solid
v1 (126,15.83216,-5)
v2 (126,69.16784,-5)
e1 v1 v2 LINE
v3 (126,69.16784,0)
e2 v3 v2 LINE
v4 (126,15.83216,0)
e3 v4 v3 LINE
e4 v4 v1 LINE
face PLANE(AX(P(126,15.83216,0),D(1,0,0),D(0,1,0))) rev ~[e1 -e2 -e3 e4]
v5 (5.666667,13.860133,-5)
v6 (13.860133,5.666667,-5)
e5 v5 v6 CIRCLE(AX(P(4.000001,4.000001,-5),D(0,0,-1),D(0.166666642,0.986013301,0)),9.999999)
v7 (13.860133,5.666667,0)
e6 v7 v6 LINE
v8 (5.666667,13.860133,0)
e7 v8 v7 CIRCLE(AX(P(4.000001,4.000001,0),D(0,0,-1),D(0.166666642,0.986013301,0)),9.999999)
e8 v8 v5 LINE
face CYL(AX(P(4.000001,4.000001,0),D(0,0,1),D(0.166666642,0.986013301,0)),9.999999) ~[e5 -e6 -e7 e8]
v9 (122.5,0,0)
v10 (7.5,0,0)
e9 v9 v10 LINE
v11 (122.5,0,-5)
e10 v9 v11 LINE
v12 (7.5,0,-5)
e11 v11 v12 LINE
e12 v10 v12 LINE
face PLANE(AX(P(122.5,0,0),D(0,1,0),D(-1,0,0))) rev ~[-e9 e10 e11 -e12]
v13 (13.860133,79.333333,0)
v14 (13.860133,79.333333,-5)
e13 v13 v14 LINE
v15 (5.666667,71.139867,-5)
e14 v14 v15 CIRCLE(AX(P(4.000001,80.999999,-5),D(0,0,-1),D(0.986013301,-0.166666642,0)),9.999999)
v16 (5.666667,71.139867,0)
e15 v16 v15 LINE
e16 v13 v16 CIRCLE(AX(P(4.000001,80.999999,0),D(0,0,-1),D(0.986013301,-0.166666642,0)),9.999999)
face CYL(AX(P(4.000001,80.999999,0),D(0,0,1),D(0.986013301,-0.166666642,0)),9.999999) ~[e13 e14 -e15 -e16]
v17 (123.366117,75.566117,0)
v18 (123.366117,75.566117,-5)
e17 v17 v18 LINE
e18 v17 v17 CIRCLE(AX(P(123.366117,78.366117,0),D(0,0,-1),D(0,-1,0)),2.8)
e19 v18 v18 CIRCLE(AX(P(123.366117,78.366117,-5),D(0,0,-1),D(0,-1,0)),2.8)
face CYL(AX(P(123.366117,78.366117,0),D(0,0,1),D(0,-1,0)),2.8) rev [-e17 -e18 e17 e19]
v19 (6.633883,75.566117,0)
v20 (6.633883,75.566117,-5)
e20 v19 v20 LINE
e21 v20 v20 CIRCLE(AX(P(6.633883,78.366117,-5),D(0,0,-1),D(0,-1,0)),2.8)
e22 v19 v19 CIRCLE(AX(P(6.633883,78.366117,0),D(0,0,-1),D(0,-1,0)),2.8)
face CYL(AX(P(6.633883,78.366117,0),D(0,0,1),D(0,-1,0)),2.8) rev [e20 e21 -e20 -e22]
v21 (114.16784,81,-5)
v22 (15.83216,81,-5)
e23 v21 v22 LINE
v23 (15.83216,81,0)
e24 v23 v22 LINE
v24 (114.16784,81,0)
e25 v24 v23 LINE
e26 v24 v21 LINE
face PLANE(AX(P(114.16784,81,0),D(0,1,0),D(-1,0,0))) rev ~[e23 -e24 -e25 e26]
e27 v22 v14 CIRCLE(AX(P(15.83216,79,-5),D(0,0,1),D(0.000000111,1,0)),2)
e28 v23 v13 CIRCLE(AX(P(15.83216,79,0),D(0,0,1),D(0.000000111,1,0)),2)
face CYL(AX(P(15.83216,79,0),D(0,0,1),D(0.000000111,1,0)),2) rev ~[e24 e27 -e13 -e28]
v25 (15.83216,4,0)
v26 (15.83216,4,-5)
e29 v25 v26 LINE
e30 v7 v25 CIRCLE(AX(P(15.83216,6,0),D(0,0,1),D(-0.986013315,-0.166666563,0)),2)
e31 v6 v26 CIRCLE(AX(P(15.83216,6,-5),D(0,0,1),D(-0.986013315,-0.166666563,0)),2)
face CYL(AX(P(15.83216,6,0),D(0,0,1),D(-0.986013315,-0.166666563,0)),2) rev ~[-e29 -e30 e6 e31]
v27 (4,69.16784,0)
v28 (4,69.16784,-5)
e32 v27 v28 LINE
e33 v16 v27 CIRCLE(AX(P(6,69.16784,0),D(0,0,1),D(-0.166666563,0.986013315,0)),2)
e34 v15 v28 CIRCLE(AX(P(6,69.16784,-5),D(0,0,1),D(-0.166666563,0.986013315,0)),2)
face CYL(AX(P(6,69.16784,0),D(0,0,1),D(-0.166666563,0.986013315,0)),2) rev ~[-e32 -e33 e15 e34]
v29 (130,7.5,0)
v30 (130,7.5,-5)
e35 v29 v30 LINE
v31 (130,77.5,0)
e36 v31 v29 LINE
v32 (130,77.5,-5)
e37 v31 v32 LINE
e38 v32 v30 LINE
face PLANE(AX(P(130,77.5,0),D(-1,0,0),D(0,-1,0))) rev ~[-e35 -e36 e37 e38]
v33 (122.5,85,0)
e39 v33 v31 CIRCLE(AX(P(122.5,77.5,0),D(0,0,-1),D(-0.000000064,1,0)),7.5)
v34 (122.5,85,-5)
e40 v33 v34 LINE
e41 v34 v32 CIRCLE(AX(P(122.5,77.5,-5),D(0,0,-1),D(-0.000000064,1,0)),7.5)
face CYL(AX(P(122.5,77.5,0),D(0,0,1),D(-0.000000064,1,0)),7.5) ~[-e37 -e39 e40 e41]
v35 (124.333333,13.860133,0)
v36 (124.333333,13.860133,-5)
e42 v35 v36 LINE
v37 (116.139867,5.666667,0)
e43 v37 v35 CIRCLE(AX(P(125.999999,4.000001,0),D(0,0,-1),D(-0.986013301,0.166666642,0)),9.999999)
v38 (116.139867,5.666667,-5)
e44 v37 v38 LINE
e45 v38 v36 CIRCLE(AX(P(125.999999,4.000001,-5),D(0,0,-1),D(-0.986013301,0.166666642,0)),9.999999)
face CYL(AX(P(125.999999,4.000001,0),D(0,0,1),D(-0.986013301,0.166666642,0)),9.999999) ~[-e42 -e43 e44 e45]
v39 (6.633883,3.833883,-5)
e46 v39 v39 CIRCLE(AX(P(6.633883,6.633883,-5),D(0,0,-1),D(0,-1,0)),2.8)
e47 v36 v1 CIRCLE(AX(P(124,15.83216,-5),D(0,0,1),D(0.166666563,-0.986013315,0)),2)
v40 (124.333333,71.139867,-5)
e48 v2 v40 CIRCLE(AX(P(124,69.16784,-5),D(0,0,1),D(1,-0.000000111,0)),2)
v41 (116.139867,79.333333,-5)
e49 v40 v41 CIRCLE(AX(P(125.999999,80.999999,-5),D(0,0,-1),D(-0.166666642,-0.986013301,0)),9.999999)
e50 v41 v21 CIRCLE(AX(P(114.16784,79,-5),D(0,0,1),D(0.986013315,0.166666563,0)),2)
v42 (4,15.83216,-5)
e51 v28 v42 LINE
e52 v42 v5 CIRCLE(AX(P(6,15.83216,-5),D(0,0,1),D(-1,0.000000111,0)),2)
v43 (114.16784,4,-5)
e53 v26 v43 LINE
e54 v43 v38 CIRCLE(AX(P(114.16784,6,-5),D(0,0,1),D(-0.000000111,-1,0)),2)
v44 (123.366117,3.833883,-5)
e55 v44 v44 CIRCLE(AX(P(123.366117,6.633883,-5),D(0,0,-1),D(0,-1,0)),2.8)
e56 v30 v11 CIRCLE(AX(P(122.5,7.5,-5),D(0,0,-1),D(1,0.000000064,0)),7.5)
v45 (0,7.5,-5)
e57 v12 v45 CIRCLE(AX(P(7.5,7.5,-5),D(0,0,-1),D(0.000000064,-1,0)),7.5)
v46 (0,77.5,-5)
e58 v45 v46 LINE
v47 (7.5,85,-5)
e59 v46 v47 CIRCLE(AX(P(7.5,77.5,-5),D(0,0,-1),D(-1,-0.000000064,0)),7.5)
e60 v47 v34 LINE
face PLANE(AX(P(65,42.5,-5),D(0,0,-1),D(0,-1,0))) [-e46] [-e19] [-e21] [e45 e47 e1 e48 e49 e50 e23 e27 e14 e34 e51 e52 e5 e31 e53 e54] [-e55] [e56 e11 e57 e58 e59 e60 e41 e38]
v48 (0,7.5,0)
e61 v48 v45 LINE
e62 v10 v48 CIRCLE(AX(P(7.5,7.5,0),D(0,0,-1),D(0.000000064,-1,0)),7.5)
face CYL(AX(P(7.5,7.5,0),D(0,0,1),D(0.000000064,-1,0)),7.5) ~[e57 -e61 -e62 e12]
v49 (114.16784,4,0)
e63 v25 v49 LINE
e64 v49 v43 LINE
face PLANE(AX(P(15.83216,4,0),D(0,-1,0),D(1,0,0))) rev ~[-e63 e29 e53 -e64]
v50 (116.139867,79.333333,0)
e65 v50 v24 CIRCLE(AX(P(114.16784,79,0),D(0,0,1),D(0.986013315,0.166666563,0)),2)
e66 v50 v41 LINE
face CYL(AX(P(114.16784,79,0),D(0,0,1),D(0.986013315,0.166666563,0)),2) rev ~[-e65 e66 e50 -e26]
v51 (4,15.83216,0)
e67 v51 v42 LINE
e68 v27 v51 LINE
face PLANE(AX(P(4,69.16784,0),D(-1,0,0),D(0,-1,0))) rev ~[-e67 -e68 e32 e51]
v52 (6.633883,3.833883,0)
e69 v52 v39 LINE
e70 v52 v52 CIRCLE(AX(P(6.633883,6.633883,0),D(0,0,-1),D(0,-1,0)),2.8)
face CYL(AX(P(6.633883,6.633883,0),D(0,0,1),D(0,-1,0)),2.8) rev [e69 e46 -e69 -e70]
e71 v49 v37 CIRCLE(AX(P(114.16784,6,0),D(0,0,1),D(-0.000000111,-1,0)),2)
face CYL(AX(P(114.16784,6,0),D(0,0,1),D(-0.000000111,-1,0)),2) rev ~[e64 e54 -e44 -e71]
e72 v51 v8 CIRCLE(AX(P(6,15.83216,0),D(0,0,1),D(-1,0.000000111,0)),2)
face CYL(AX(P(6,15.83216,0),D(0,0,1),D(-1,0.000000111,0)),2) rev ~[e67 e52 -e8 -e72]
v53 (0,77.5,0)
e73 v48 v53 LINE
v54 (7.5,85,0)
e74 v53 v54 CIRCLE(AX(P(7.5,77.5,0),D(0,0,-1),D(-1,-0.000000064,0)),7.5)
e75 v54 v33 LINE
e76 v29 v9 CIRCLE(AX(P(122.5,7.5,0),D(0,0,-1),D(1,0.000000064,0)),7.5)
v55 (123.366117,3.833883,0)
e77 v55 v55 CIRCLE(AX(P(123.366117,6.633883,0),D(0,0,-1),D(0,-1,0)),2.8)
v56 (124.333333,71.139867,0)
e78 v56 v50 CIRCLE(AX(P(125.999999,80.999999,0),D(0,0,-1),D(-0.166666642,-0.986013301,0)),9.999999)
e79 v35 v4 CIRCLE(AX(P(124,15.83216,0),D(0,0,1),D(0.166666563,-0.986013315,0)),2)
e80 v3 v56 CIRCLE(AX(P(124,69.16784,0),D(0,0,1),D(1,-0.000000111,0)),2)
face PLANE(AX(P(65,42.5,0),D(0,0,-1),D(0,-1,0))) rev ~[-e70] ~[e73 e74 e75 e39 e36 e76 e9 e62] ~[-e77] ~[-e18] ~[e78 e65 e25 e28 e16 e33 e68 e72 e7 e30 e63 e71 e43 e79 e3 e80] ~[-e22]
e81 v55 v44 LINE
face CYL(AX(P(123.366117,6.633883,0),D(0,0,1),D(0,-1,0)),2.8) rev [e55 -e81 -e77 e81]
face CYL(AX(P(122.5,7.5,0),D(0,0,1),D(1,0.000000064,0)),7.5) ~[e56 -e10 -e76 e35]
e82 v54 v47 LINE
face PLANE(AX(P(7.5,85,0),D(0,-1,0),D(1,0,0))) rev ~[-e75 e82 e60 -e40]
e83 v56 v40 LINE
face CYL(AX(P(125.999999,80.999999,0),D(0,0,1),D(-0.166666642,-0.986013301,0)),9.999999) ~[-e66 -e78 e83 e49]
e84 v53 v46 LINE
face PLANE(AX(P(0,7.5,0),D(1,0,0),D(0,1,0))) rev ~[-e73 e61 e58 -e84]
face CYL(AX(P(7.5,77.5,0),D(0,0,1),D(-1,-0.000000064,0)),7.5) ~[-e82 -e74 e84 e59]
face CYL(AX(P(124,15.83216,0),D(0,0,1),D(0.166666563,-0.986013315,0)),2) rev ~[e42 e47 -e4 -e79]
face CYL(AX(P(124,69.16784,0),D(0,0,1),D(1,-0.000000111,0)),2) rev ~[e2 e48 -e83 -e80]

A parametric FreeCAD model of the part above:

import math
import FreeCAD as App
import Part
import Sketcher
Q = App.Units.Quantity

doc = App.newDocument("Part")
body = doc.addObject("PartDesign::Body", "Body")

sketch1 = body.newObject("Sketcher::SketchObject", "Sketch")
sketch1.AttachmentSupport = (doc.getObject("XY_Plane"), [""])
sketch1.MapMode = "FlatFace"
sketch1.addGeometry(Part.LineSegment(App.Vector(0, 7.5, 0), App.Vector(0, 77.5, 0)), False)
sketch1.addGeometry(Part.ArcOfCircle(Part.Circle(App.Vector(7.5, 77.5, 0), App.Vector(0, 0, 1), 7.5), math.radians(90), math.radians(180)), False)
sketch1.addGeometry(Part.LineSegment(App.Vector(7.5, 85, 0), App.Vector(122.5, 85, 0)), False)
sketch1.addGeometry(Part.ArcOfCircle(Part.Circle(App.Vector(122.5, 77.5, 0), App.Vector(0, 0, 1), 7.5), math.radians(0), math.radians(90)), False)
sketch1.addGeometry(Part.LineSegment(App.Vector(130, 77.5, 0), App.Vector(130, 7.5, 0)), False)
sketch1.addGeometry(Part.ArcOfCircle(Part.Circle(App.Vector(122.5, 7.5, 0), App.Vector(0, 0, 1), 7.5), math.radians(-90), math.radians(0)), False)
sketch1.addGeometry(Part.LineSegment(App.Vector(122.5, 0, 0), App.Vector(7.5, 0, 0)), False)
sketch1.addGeometry(Part.ArcOfCircle(Part.Circle(App.Vector(7.5, 7.5, 0), App.Vector(0, 0, 1), 7.5), math.radians(180), math.radians(270)), False)
sketch1.addGeometry(Part.Circle(App.Vector(123.4, 78.4, 0), App.Vector(0, 0, 1), 2.8), False)
sketch1.addGeometry(Part.Circle(App.Vector(123.4, 6.6, 0), App.Vector(0, 0, 1), 2.8), False)
sketch1.addGeometry(Part.Circle(App.Vector(6.6, 78.4, 0), App.Vector(0, 0, 1), 2.8), False)
sketch1.addGeometry(Part.ArcOfCircle(Part.Circle(App.Vector(6, 15.8, 0), App.Vector(0, 0, 1), 2), math.radians(180), math.radians(260)), False)
sketch1.addGeometry(Part.ArcOfCircle(Part.Circle(App.Vector(4, 4, 0), App.Vector(0, 0, 1), 10), math.radians(10), math.radians(80)), False)
sketch1.addGeometry(Part.ArcOfCircle(Part.Circle(App.Vector(15.8, 6, 0), App.Vector(0, 0, 1), 2), math.radians(-170), math.radians(-90)), False)
sketch1.addGeometry(Part.LineSegment(App.Vector(15.8, 4, 0), App.Vector(114.2, 4, 0)), False)
sketch1.addGeometry(Part.ArcOfCircle(Part.Circle(App.Vector(114.2, 6, 0), App.Vector(0, 0, 1), 2), math.radians(-90), math.radians(-10)), False)
sketch1.addGeometry(Part.ArcOfCircle(Part.Circle(App.Vector(126, 4, 0), App.Vector(0, 0, 1), 10), math.radians(100), math.radians(170)), False)
sketch1.addGeometry(Part.ArcOfCircle(Part.Circle(App.Vector(124, 15.8, 0), App.Vector(0, 0, 1), 2), math.radians(-80), math.radians(0)), False)
sketch1.addGeometry(Part.LineSegment(App.Vector(126, 15.8, 0), App.Vector(126, 69.2, 0)), False)
sketch1.addGeometry(Part.ArcOfCircle(Part.Circle(App.Vector(124, 69.2, 0), App.Vector(0, 0, 1), 2), math.radians(0), math.radians(80)), False)
sketch1.addGeometry(Part.ArcOfCircle(Part.Circle(App.Vector(126, 81, 0), App.Vector(0, 0, 1), 10), math.radians(-170), math.radians(-100)), False)
sketch1.addGeometry(Part.ArcOfCircle(Part.Circle(App.Vector(114.2, 79, 0), App.Vector(0, 0, 1), 2), math.radians(10), math.radians(90)), False)
sketch1.addGeometry(Part.LineSegment(App.Vector(114.2, 81, 0), App.Vector(15.8, 81, 0)), False)
sketch1.addGeometry(Part.ArcOfCircle(Part.Circle(App.Vector(15.8, 79, 0), App.Vector(0, 0, 1), 2), math.radians(90), math.radians(170)), False)
sketch1.addGeometry(Part.ArcOfCircle(Part.Circle(App.Vector(4, 81, 0), App.Vector(0, 0, 1), 10), math.radians(-80), math.radians(-10)), False)
sketch1.addGeometry(Part.ArcOfCircle(Part.Circle(App.Vector(6, 69.2, 0), App.Vector(0, 0, 1), 2), math.radians(100), math.radians(180)), False)
sketch1.addGeometry(Part.LineSegment(App.Vector(4, 69.2, 0), App.Vector(4, 15.8, 0)), False)
sketch1.addGeometry(Part.Circle(App.Vector(6.6, 6.6, 0), App.Vector(0, 0, 1), 2.8), False)
sketch1.addConstraint(Sketcher.Constraint("Tangent", 0, 2, 1, 2))
sketch1.addConstraint(Sketcher.Constraint("Tangent", 1, 1, 2, 1))
sketch1.addConstraint(Sketcher.Constraint("Tangent", 2, 2, 3, 2))
sketch1.addConstraint(Sketcher.Constraint("Tangent", 3, 1, 4, 1))
sketch1.addConstraint(Sketcher.Constraint("Tangent", 4, 2, 5, 2))
sketch1.addConstraint(Sketcher.Constraint("Tangent", 5, 1, 6, 1))
sketch1.addConstraint(Sketcher.Constraint("Tangent", 6, 2, 7, 2))
sketch1.addConstraint(Sketcher.Constraint("Tangent", 7, 1, 0, 1))
sketch1.addConstraint(Sketcher.Constraint("Tangent", 11, 2, 12, 2))
sketch1.addConstraint(Sketcher.Constraint("Tangent", 12, 1, 13, 1))
sketch1.addConstraint(Sketcher.Constraint("Tangent", 13, 2, 14, 1))
sketch1.addConstraint(Sketcher.Constraint("Tangent", 14, 2, 15, 1))
sketch1.addConstraint(Sketcher.Constraint("Tangent", 15, 2, 16, 2))
sketch1.addConstraint(Sketcher.Constraint("Tangent", 16, 1, 17, 1))
sketch1.addConstraint(Sketcher.Constraint("Tangent", 17, 2, 18, 1))
sketch1.addConstraint(Sketcher.Constraint("Tangent", 18, 2, 19, 1))
sketch1.addConstraint(Sketcher.Constraint("Tangent", 19, 2, 20, 2))
sketch1.addConstraint(Sketcher.Constraint("Tangent", 20, 1, 21, 1))
sketch1.addConstraint(Sketcher.Constraint("Tangent", 21, 2, 22, 1))
sketch1.addConstraint(Sketcher.Constraint("Tangent", 22, 2, 23, 1))
sketch1.addConstraint(Sketcher.Constraint("Tangent", 23, 2, 24, 2))
sketch1.addConstraint(Sketcher.Constraint("Tangent", 24, 1, 25, 1))
sketch1.addConstraint(Sketcher.Constraint("Tangent", 25, 2, 26, 1))
sketch1.addConstraint(Sketcher.Constraint("Tangent", 26, 2, 11, 1))
sketch1.addConstraint(Sketcher.Constraint("Vertical", 0))
sketch1.addConstraint(Sketcher.Constraint("Horizontal", 2))
sketch1.addConstraint(Sketcher.Constraint("Vertical", 4))
sketch1.addConstraint(Sketcher.Constraint("Horizontal", 6))
sketch1.addConstraint(Sketcher.Constraint("Horizontal", 14))
sketch1.addConstraint(Sketcher.Constraint("Vertical", 18))
sketch1.addConstraint(Sketcher.Constraint("Horizontal", 22))
sketch1.addConstraint(Sketcher.Constraint("Vertical", 26))
sketch1.addConstraint(Sketcher.Constraint("Equal", 1, 3))
sketch1.addConstraint(Sketcher.Constraint("Equal", 3, 5))
sketch1.addConstraint(Sketcher.Constraint("Equal", 5, 7))
sketch1.addConstraint(Sketcher.Constraint("Equal", 8, 9))
sketch1.addConstraint(Sketcher.Constraint("Equal", 9, 10))
sketch1.addConstraint(Sketcher.Constraint("Equal", 11, 13))
sketch1.addConstraint(Sketcher.Constraint("Equal", 13, 15))
sketch1.addConstraint(Sketcher.Constraint("Equal", 12, 16))
sketch1.addConstraint(Sketcher.Constraint("Equal", 15, 17))
sketch1.addConstraint(Sketcher.Constraint("Equal", 17, 19))
sketch1.addConstraint(Sketcher.Constraint("Equal", 16, 20))
sketch1.addConstraint(Sketcher.Constraint("Equal", 19, 21))
sketch1.addConstraint(Sketcher.Constraint("Equal", 21, 23))
sketch1.addConstraint(Sketcher.Constraint("Equal", 20, 24))
sketch1.addConstraint(Sketcher.Constraint("Equal", 23, 25))
sketch1.addConstraint(Sketcher.Constraint("Equal", 10, 27))
sketch1.addConstraint(Sketcher.Constraint("PointOnObject", 0, 2, -2))
sketch1.addConstraint(Sketcher.Constraint("PointOnObject", 5, 1, -1))
sketch1.addConstraint(Sketcher.Constraint("Horizontal", 8, 3, 10, 3))
sketch1.addConstraint(Sketcher.Constraint("Horizontal", 12, 3, 16, 3))
sketch1.addConstraint(Sketcher.Constraint("Horizontal", 11, 3, 17, 3))
sketch1.addConstraint(Sketcher.Constraint("Horizontal", 20, 3, 24, 3))
sketch1.addConstraint(Sketcher.Constraint("Horizontal", 19, 3, 25, 3))
sketch1.addConstraint(Sketcher.Constraint("Horizontal", 9, 3, 27, 3))
sketch1.addConstraint(Sketcher.Constraint("Horizontal", 16, 3, 13, 2))
sketch1.addConstraint(Sketcher.Constraint("Horizontal", 24, 3, 21, 2))
sketch1.addConstraint(Sketcher.Constraint("Vertical", 8, 3, 9, 3))
sketch1.addConstraint(Sketcher.Constraint("Vertical", 16, 3, 20, 3))
sketch1.addConstraint(Sketcher.Constraint("Vertical", 10, 3, 27, 3))
sketch1.addConstraint(Sketcher.Constraint("Vertical", 20, 3, 17, 2))
sketch1.addConstraint(Sketcher.Constraint("Radius", 11, Q("2 mm")))
sketch1.addConstraint(Sketcher.Constraint("Radius", 12, Q("9.999999 mm")))
sketch1.addConstraint(Sketcher.Constraint("Diameter", 8, Q("5.6 mm")))
sketch1.addConstraint(Sketcher.Constraint("Radius", 1, Q("7.5 mm")))
sketch1.addConstraint(Sketcher.Constraint("DistanceX", 2, 1, 2, 2, Q("115 mm")))
sketch1.addConstraint(Sketcher.Constraint("DistanceY", 0, 1, 0, 2, Q("70 mm")))
sketch1.addConstraint(Sketcher.Constraint("DistanceX", -1, 1, 11, 3, Q("6 mm")))
sketch1.addConstraint(Sketcher.Constraint("DistanceY", -1, 1, 12, 3, Q("4.000001 mm")))
sketch1.addConstraint(Sketcher.Constraint("DistanceX", -1, 1, 16, 3, Q("125.999999 mm")))
sketch1.addConstraint(Sketcher.Constraint("DistanceY", -1, 1, 20, 3, Q("80.999999 mm")))
sketch1.addConstraint(Sketcher.Constraint("DistanceY", 27, 3, 11, 2, Q("7.22625 mm")))
sketch1.addConstraint(Sketcher.Constraint("DistanceX", 27, 3, 12, 1, Q("7.22625 mm")))
sketch1.addConstraint(Sketcher.Constraint("DistanceX", 15, 2, 9, 3, Q("7.22625 mm")))
sketch1.addConstraint(Sketcher.Constraint("DistanceY", 19, 2, 8, 3, Q("7.22625 mm")))
pad1 = body.newObject("PartDesign::Pad", "Pad")
pad1.Profile = sketch1
pad1.Length = 5
pad1.Reversed = True

doc.recompute()
